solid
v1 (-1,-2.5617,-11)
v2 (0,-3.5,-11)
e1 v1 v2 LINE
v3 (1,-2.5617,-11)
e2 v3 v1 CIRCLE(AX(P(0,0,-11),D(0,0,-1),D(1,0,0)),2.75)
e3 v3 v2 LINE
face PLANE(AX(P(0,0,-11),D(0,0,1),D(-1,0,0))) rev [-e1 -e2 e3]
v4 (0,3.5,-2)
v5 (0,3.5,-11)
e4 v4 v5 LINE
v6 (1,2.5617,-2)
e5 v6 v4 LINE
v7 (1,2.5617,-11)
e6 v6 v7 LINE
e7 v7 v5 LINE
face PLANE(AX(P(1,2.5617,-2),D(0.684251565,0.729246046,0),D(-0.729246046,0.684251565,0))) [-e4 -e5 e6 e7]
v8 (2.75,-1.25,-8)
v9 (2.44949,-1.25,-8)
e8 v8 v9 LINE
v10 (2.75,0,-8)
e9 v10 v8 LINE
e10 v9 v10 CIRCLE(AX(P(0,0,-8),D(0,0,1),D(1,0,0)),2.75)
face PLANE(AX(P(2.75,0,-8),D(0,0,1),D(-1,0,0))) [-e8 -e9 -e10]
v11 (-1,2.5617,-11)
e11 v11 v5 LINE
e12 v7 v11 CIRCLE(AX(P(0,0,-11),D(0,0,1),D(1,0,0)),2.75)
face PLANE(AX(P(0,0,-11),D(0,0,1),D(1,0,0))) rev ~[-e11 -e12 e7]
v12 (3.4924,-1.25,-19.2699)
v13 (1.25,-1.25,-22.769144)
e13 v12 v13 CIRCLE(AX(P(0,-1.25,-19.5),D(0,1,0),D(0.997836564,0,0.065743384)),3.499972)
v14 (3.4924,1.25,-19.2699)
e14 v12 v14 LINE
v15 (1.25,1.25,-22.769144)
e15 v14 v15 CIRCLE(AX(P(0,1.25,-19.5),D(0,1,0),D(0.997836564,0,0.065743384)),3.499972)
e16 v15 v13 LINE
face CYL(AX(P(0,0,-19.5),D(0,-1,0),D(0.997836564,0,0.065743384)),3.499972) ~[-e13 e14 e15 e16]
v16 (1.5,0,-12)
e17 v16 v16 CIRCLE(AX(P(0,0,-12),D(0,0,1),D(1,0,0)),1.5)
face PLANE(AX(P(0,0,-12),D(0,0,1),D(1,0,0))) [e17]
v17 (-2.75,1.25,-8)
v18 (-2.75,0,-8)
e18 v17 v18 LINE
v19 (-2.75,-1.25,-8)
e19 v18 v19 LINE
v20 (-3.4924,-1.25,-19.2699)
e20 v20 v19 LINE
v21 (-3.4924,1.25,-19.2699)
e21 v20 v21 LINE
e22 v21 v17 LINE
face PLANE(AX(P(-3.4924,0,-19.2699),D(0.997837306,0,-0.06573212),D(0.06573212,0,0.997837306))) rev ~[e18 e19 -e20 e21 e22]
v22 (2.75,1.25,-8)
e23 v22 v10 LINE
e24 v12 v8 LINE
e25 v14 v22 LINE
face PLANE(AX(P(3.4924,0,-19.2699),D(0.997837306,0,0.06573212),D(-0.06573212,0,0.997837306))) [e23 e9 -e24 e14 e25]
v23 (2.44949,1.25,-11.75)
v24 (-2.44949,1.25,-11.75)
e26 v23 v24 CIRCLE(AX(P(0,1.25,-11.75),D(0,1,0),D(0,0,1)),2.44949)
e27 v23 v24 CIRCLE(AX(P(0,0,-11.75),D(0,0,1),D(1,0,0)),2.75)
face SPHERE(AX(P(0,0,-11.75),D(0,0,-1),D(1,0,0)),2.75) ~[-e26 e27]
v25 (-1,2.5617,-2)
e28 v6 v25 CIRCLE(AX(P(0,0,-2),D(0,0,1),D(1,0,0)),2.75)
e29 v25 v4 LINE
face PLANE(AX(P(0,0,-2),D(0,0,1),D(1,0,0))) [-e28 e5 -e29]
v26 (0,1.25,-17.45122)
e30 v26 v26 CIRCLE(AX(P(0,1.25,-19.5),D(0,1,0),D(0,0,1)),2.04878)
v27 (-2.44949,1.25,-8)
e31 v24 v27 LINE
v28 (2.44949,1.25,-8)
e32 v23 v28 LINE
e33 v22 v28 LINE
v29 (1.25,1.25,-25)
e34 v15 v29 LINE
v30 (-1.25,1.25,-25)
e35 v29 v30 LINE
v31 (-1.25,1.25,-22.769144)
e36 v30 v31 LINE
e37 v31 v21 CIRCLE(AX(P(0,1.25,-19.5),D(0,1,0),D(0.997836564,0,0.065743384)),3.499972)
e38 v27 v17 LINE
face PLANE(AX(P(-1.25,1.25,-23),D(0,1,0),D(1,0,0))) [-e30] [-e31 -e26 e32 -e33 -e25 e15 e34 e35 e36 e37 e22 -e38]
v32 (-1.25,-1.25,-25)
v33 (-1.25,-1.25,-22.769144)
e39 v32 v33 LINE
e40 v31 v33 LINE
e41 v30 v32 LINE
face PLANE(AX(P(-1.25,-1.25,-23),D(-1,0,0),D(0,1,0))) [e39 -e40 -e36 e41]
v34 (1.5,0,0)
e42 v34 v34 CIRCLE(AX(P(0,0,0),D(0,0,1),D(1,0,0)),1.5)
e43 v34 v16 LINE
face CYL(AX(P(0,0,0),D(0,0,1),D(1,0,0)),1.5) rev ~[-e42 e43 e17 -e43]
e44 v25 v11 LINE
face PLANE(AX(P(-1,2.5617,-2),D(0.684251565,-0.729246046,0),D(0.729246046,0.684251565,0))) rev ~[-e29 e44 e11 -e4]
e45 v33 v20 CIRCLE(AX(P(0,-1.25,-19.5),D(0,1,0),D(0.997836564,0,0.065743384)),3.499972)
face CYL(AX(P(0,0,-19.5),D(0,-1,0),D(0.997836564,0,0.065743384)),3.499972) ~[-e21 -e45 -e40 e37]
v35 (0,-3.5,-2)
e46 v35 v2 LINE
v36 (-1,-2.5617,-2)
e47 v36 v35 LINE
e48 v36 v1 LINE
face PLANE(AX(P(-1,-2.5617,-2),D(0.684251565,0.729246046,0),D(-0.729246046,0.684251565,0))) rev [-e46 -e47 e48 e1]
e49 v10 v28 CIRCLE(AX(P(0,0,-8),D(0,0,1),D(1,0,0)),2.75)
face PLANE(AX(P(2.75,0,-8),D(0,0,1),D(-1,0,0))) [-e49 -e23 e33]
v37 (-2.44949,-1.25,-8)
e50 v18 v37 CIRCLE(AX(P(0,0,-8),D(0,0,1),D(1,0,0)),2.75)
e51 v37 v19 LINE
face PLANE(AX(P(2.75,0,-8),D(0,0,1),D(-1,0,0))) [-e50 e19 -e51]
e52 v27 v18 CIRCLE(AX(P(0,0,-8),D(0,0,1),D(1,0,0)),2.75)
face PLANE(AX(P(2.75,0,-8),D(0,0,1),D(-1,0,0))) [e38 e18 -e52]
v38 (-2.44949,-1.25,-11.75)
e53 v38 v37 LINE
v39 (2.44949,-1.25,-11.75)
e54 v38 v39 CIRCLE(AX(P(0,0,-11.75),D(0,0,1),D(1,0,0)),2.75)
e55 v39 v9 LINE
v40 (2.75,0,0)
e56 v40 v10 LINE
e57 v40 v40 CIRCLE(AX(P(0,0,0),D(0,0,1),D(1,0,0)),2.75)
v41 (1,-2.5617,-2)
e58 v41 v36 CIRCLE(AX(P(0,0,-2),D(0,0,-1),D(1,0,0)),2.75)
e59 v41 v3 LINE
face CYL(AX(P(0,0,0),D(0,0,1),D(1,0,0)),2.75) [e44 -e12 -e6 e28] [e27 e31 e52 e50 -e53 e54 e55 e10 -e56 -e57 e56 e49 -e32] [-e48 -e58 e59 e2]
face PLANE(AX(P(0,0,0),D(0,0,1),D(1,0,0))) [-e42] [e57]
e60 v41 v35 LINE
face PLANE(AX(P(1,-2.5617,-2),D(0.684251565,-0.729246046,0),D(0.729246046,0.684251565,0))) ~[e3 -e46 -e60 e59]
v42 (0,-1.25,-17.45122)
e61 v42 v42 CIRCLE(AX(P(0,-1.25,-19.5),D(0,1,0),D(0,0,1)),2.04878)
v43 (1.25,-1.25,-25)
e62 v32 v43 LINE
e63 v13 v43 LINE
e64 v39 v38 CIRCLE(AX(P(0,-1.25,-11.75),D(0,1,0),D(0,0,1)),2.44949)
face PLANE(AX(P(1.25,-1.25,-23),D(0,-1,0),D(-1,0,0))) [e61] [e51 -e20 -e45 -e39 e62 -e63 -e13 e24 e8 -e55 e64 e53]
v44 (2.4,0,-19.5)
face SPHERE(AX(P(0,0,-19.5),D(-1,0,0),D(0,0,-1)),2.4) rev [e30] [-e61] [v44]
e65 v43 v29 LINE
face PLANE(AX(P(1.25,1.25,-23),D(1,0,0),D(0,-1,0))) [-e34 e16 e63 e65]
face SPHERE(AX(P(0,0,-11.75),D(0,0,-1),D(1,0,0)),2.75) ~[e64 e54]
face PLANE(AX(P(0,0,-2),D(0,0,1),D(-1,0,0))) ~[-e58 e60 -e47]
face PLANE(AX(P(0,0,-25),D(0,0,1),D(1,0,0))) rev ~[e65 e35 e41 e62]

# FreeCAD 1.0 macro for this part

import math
import FreeCAD as App
import Part
import Sketcher
Q = App.Units.Quantity


def edges_at(feature, points):
    """Names of the edges that pass closest to the given points."""
    edges = feature.Shape.Edges
    near = lambda p: min(range(len(edges)), key=lambda i: edges[i].distToShape(Part.Vertex(*p))[0])
    return sorted({f"Edge{near(p) + 1}" for p in points})

doc = App.newDocument("Part")
body = doc.addObject("PartDesign::Body", "Body")
body.AllowCompound = True

# Sketch on XY plane
sketch1 = body.newObject("Sketcher::SketchObject", "Sketch")
sketch1.AttachmentSupport = (doc.getObject("XY_Plane"), [""])
sketch1.MapMode = "FlatFace"
sketch1.addGeometry(Part.Circle(App.Vector(0, 0, 0), App.Vector(0, 0, 1), 2.75), False)
sketch1.addConstraint(Sketcher.Constraint("Coincident", 0, 3, -1, 1))
sketch1.addConstraint(Sketcher.Constraint("Diameter", 0, Q("5.5 mm")))
pad1 = body.newObject("PartDesign::Pad", "Pad")
pad1.Profile = sketch1
pad1.Length = 14.5
pad1.Reversed = True
doc.recompute()

fillet = body.newObject("PartDesign::Fillet", "Fillet")
fillet.Base = (pad1, edges_at(pad1, [(-2.75, 0, -14.5)]))
fillet.Radius = 2.75

# Sketch on XZ plane
sketch2 = body.newObject("Sketcher::SketchObject", "Sketch001")
sketch2.AttachmentSupport = (doc.getObject("XZ_Plane"), [""])
sketch2.MapMode = "FlatFace"
sketch2.addGeometry(Part.LineSegment(App.Vector(2.75, -8, 0), App.Vector(3.4924, -19.2699, 0)), False)
sketch2.addGeometry(Part.ArcOfCircle(Part.Circle(App.Vector(0, -19.5, 0), App.Vector(0, 0, 1), 3.499972), math.radians(176.230463), math.radians(363.769537)), False)
sketch2.addGeometry(Part.LineSegment(App.Vector(-3.4924, -19.2699, 0), App.Vector(-2.75, -8, 0)), False)
sketch2.addGeometry(Part.LineSegment(App.Vector(-2.75, -8, 0), App.Vector(2.75, -8, 0)), False)
sketch2.addConstraint(Sketcher.Constraint("Tangent", 0, 2, 1, 2))
sketch2.addConstraint(Sketcher.Constraint("Tangent", 1, 1, 2, 1))
sketch2.addConstraint(Sketcher.Constraint("Coincident", 2, 2, 3, 1))
sketch2.addConstraint(Sketcher.Constraint("Coincident", 3, 2, 0, 1))
sketch2.addConstraint(Sketcher.Constraint("Horizontal", 3))
sketch2.addConstraint(Sketcher.Constraint("Symmetric", 0, 2, 1, 1, -2))
sketch2.addConstraint(Sketcher.Constraint("Radius", 1, Q("3.5 mm")))
sketch2.addConstraint(Sketcher.Constraint("DistanceY", 2, 2, -1, 1, Q("8 mm")))
sketch2.addConstraint(Sketcher.Constraint("DistanceY", 1, 3, -1, 1, Q("19.5 mm")))
sketch2.addConstraint(Sketcher.Constraint("DistanceX", 3, 1, 3, 2, Q("5.5 mm")))
pad2 = body.newObject("PartDesign::Pad", "Pad001")
pad2.Profile = sketch2
pad2.Length = 2.5
pad2.Midplane = True

# Sketch on XZ plane
sketch3 = body.newObject("Sketcher::SketchObject", "Sketch002")
sketch3.AttachmentSupport = (doc.getObject("XZ_Plane"), [""])
sketch3.MapMode = "FlatFace"
sketch3.addGeometry(Part.LineSegment(App.Vector(-2.4, -19.5, 0), App.Vector(2.4, -19.5, 0)), False)
sketch3.addGeometry(Part.ArcOfCircle(Part.Circle(App.Vector(0, -19.5, 0), App.Vector(0, 0, 1), 2.4), math.radians(180), math.radians(360)), False)
sketch3.addGeometry(Part.LineSegment(App.Vector(-2.4, -19.5, 0), App.Vector(2.4, -19.5, 0)), True)  # axis
sketch3.addConstraint(Sketcher.Constraint("Coincident", 0, 1, 1, 1))
sketch3.addConstraint(Sketcher.Constraint("Coincident", 1, 2, 0, 2))
sketch3.addConstraint(Sketcher.Constraint("Horizontal", 0))
sketch3.addConstraint(Sketcher.Constraint("Horizontal", 2))
sketch3.addConstraint(Sketcher.Constraint("Coincident", 2, 1, 0, 1))
sketch3.addConstraint(Sketcher.Constraint("PointOnObject", 1, 3, -2))
sketch3.addConstraint(Sketcher.Constraint("Horizontal", 1, 3, 0, 1))
sketch3.addConstraint(Sketcher.Constraint("Equal", 0, 2))
sketch3.addConstraint(Sketcher.Constraint("Radius", 1, Q("2.4 mm")))
sketch3.addConstraint(Sketcher.Constraint("DistanceY", 1, 3, -1, 1, Q("19.5 mm")))
groove = body.newObject("PartDesign::Groove", "Groove")
groove.Profile = sketch3
groove.ReferenceAxis = (sketch3, ["Axis0"])
groove.Angle = 360

# Sketch on XY plane
sketch4 = body.newObject("Sketcher::SketchObject", "Sketch003")
sketch4.AttachmentSupport = (doc.getObject("XY_Plane"), [""])
sketch4.MapMode = "FlatFace"
sketch4.addGeometry(Part.Circle(App.Vector(0, 0, 0), App.Vector(0, 0, 1), 1.5), False)
sketch4.addConstraint(Sketcher.Constraint("Coincident", 0, 3, -1, 1))
sketch4.addConstraint(Sketcher.Constraint("Diameter", 0, Q("3 mm")))
pocket1 = body.newObject("PartDesign::Pocket", "Pocket")
pocket1.Profile = sketch4
pocket1.Length = 12

# Sketch on XY plane
sketch5 = body.newObject("Sketcher::SketchObject", "Sketch004")
sketch5.AttachmentSupport = (doc.getObject("XY_Plane"), [""])
sketch5.MapMode = "FlatFace"
sketch5.AttachmentOffset = App.Placement(App.Vector(0, 0, -23), App.Rotation())
sketch5.addGeometry(Part.LineSegment(App.Vector(1.25, -1.25, 0), App.Vector(1.25, 1.25, 0)), False)
sketch5.addGeometry(Part.LineSegment(App.Vector(1.25, 1.25, 0), App.Vector(-1.25, 1.25, 0)), False)
sketch5.addGeometry(Part.LineSegment(App.Vector(-1.25, 1.25, 0), App.Vector(-1.25, -1.25, 0)), False)
sketch5.addGeometry(Part.LineSegment(App.Vector(-1.25, -1.25, 0), App.Vector(1.25, -1.25, 0)), False)
sketch5.addConstraint(Sketcher.Constraint("Coincident", 0, 2, 1, 1))
sketch5.addConstraint(Sketcher.Constraint("Coincident", 1, 2, 2, 1))
sketch5.addConstraint(Sketcher.Constraint("Coincident", 2, 2, 3, 1))
sketch5.addConstraint(Sketcher.Constraint("Coincident", 3, 2, 0, 1))
sketch5.addConstraint(Sketcher.Constraint("Vertical", 0))
sketch5.addConstraint(Sketcher.Constraint("Horizontal", 1))
sketch5.addConstraint(Sketcher.Constraint("Vertical", 2))
sketch5.addConstraint(Sketcher.Constraint("Horizontal", 3))
sketch5.addConstraint(Sketcher.Constraint("Symmetric", 0, 2, 2, 2, -1, 1))
sketch5.addConstraint(Sketcher.Constraint("Equal", 3, 0))
sketch5.addConstraint(Sketcher.Constraint("DistanceX", 1, 2, 1, 1, Q("2.5 mm")))
pad3 = body.newObject("PartDesign::Pad", "Pad002")
pad3.Profile = sketch5
pad3.Length = 2
pad3.Reversed = True

# Sketch on XY plane
sketch6 = body.newObject("Sketcher::SketchObject", "Sketch005")
sketch6.AttachmentSupport = (doc.getObject("XY_Plane"), [""])
sketch6.MapMode = "FlatFace"
sketch6.AttachmentOffset = App.Placement(App.Vector(0, 0, -23), App.Rotation())
sketch6.addGeometry(Part.LineSegment(App.Vector(1.25, 1.25, 0), App.Vector(-1.25, 1.25, 0)), False)
sketch6.addGeometry(Part.LineSegment(App.Vector(-1.25, 1.25, 0), App.Vector(-1.25, -1.25, 0)), False)
sketch6.addGeometry(Part.LineSegment(App.Vector(-1.25, -1.25, 0), App.Vector(1.25, -1.25, 0)), False)
sketch6.addGeometry(Part.LineSegment(App.Vector(1.25, -1.25, 0), App.Vector(1.25, 1.25, 0)), False)
sketch6.addConstraint(Sketcher.Constraint("Coincident", 0, 2, 1, 1))
sketch6.addConstraint(Sketcher.Constraint("Coincident", 1, 2, 2, 1))
sketch6.addConstraint(Sketcher.Constraint("Coincident", 2, 2, 3, 1))
sketch6.addConstraint(Sketcher.Constraint("Coincident", 3, 2, 0, 1))
sketch6.addConstraint(Sketcher.Constraint("Horizontal", 0))
sketch6.addConstraint(Sketcher.Constraint("Vertical", 1))
sketch6.addConstraint(Sketcher.Constraint("Horizontal", 2))
sketch6.addConstraint(Sketcher.Constraint("Vertical", 3))
sketch6.addConstraint(Sketcher.Constraint("Symmetric", 0, 2, 2, 2, -1, 1))
sketch6.addConstraint(Sketcher.Constraint("Equal", 2, 1))
sketch6.addConstraint(Sketcher.Constraint("DistanceX", 0, 2, 0, 1, Q("2.5 mm")))
pad4 = body.newObject("PartDesign::Pad", "Pad003")
pad4.Profile = sketch6
pad4.Length = 0.2309

# Sketch on XY plane
sketch7 = body.newObject("Sketcher::SketchObject", "Sketch006")
sketch7.AttachmentSupport = (doc.getObject("XY_Plane"), [""])
sketch7.MapMode = "FlatFace"
sketch7.AttachmentOffset = App.Placement(App.Vector(0, 0, -2), App.Rotation())
sketch7.addGeometry(Part.ArcOfCircle(Part.Circle(App.Vector(0, 0, 0), App.Vector(0, 0, 1), 2.75), math.radians(68.676028), math.radians(111.323972)), False)
sketch7.addGeometry(Part.LineSegment(App.Vector(1, 2.5617, 0), App.Vector(0, 3.5, 0)), False)
sketch7.addGeometry(Part.LineSegment(App.Vector(0, 3.5, 0), App.Vector(-1, 2.5617, 0)), False)
sketch7.addConstraint(Sketcher.Constraint("Coincident", 0, 1, 1, 1))
sketch7.addConstraint(Sketcher.Constraint("Coincident", 1, 2, 2, 1))
sketch7.addConstraint(Sketcher.Constraint("Coincident", 2, 2, 0, 2))
sketch7.addConstraint(Sketcher.Constraint("Coincident", 0, 3, -1, 1))
sketch7.addConstraint(Sketcher.Constraint("PointOnObject", 1, 2, -2))
sketch7.addConstraint(Sketcher.Constraint("Horizontal", 0, 1, 2, 2))
sketch7.addConstraint(Sketcher.Constraint("DistanceX", 2, 2, 0, 1, Q("2 mm")))
sketch7.addConstraint(Sketcher.Constraint("DistanceY", -1, 1, 1, 2, Q("3.5 mm")))
sketch7.addConstraint(Sketcher.Constraint("Radius", 0, Q("2.75 mm")))
pad5 = body.newObject("PartDesign::Pad", "Pad004")
pad5.Profile = sketch7
pad5.Length = 9
pad5.Reversed = True
doc.recompute()

mirrored = body.newObject("PartDesign::Mirrored", "Mirrored")
mirrored.Originals = [pad5]
mirrored.MirrorPlane = (doc.getObject("XZ_Plane"), [""])
body.Tip = mirrored

doc.recompute()
